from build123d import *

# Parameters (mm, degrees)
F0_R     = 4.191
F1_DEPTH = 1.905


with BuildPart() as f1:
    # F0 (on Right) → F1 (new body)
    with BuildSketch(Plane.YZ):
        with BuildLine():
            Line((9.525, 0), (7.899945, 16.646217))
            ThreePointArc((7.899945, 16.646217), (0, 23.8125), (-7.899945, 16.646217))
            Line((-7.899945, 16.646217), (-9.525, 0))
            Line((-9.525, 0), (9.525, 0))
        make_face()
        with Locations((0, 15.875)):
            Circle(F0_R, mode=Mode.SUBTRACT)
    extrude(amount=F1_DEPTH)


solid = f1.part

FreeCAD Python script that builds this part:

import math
import FreeCAD as App
import Part
import Sketcher
Q = App.Units.Quantity

doc = App.newDocument("Part")
body = doc.addObject("PartDesign::Body", "Body")

# Sketch on YZ plane
sketch1 = body.newObject("Sketcher::SketchObject", "Sketch")
sketch1.AttachmentSupport = (doc.getObject("YZ_Plane"), [""])
sketch1.MapMode = "FlatFace"
sketch1.addGeometry(Part.LineSegment(App.Vector(9.525, 0, 0), App.Vector(7.899945, 16.646217, 0)), False)
sketch1.addGeometry(Part.ArcOfCircle(Part.Circle(App.Vector(0, 15.875, 0), App.Vector(0, 0, 1), 7.9375), math.radians(5.575723), math.radians(174.424277)), False)
sketch1.addGeometry(Part.LineSegment(App.Vector(-7.899945, 16.646217, 0), App.Vector(-9.525, 0, 0)), False)
sketch1.addGeometry(Part.LineSegment(App.Vector(-9.525, 0, 0), App.Vector(9.525, 0, 0)), False)
sketch1.addGeometry(Part.Circle(App.Vector(0, 15.875, 0), App.Vector(0, 0, 1), 4.191), False)
sketch1.addConstraint(Sketcher.Constraint("Tangent", 0, 2, 1, 1))
sketch1.addConstraint(Sketcher.Constraint("Tangent", 1, 2, 2, 1))
sketch1.addConstraint(Sketcher.Constraint("Coincident", 2, 2, 3, 1))
sketch1.addConstraint(Sketcher.Constraint("Coincident", 3, 2, 0, 1))
sketch1.addConstraint(Sketcher.Constraint("Horizontal", 3))
sketch1.addConstraint(Sketcher.Constraint("Coincident", 4, 3, 1, 3))
sketch1.addConstraint(Sketcher.Constraint("Symmetric", 2, 2, 3, 2, -1, 1))
sketch1.addConstraint(Sketcher.Constraint("PointOnObject", 1, 3, -2))
sketch1.addConstraint(Sketcher.Constraint("Diameter", 4, Q("0.33 in")))
sketch1.addConstraint(Sketcher.Constraint("Radius", 1, Q("0.3125 in")))
sketch1.addConstraint(Sketcher.Constraint("DistanceX", 3, 1, 3, 2, Q("0.75 in")))
sketch1.addConstraint(Sketcher.Constraint("DistanceY", -1, 1, 1, 3, Q("0.625 in")))
pad1 = body.newObject("PartDesign::Pad", "Pad")
pad1.Profile = sketch1
pad1.Length = Q("0.075 in")

doc.recompute()
